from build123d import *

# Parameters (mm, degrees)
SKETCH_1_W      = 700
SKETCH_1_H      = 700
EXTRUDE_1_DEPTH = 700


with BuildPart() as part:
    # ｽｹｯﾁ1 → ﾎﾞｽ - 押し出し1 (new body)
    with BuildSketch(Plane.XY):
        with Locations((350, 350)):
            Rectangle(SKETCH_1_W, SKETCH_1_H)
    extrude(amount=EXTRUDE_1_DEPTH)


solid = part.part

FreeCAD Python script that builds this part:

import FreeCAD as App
import Part
import Sketcher
from FreeCAD import Vector


def add_polygon(sketch, points):
    """Adds a closed chain of lines whose ends are joined by coincident constraints."""
    first, n = sketch.GeometryCount, len(points)
    for a, b in zip(points, points[1:] + points[:1]):
        sketch.addGeometry(Part.LineSegment(App.Vector(*a, 0), App.Vector(*b, 0)), False)
    for i in range(n):
        sketch.addConstraint(Sketcher.Constraint("Coincident", first + i, 2, first + (i + 1) % n, 1))

doc = App.newDocument("Part")
body = doc.addObject("PartDesign::Body", "Body")

# Sketch on XY plane
sketch1 = body.newObject("Sketcher::SketchObject", "Sketch")
sketch1.AttachmentSupport = (doc.getObject("XY_Plane"), [""])
sketch1.MapMode = "FlatFace"
add_polygon(sketch1, [(0, 700), (0, 0), (700, 0), (700, 700)])  # lines 0-3
sketch1.addConstraint([
    Sketcher.Constraint("Vertical", 0),
    Sketcher.Constraint("Horizontal", 1),
    Sketcher.Constraint("Vertical", 2),
    Sketcher.Constraint("Horizontal", 3),
    Sketcher.Constraint("Coincident", 0, 2, -1, 1),
    Sketcher.Constraint("Equal", 3, 0),
    Sketcher.Constraint("DistanceX", 1, 1, 1, 2, 700.0),
])
pad1 = body.newObject("PartDesign::Pad", "Pad")
pad1.Profile = sketch1
pad1.Length = 700

doc.recompute()
